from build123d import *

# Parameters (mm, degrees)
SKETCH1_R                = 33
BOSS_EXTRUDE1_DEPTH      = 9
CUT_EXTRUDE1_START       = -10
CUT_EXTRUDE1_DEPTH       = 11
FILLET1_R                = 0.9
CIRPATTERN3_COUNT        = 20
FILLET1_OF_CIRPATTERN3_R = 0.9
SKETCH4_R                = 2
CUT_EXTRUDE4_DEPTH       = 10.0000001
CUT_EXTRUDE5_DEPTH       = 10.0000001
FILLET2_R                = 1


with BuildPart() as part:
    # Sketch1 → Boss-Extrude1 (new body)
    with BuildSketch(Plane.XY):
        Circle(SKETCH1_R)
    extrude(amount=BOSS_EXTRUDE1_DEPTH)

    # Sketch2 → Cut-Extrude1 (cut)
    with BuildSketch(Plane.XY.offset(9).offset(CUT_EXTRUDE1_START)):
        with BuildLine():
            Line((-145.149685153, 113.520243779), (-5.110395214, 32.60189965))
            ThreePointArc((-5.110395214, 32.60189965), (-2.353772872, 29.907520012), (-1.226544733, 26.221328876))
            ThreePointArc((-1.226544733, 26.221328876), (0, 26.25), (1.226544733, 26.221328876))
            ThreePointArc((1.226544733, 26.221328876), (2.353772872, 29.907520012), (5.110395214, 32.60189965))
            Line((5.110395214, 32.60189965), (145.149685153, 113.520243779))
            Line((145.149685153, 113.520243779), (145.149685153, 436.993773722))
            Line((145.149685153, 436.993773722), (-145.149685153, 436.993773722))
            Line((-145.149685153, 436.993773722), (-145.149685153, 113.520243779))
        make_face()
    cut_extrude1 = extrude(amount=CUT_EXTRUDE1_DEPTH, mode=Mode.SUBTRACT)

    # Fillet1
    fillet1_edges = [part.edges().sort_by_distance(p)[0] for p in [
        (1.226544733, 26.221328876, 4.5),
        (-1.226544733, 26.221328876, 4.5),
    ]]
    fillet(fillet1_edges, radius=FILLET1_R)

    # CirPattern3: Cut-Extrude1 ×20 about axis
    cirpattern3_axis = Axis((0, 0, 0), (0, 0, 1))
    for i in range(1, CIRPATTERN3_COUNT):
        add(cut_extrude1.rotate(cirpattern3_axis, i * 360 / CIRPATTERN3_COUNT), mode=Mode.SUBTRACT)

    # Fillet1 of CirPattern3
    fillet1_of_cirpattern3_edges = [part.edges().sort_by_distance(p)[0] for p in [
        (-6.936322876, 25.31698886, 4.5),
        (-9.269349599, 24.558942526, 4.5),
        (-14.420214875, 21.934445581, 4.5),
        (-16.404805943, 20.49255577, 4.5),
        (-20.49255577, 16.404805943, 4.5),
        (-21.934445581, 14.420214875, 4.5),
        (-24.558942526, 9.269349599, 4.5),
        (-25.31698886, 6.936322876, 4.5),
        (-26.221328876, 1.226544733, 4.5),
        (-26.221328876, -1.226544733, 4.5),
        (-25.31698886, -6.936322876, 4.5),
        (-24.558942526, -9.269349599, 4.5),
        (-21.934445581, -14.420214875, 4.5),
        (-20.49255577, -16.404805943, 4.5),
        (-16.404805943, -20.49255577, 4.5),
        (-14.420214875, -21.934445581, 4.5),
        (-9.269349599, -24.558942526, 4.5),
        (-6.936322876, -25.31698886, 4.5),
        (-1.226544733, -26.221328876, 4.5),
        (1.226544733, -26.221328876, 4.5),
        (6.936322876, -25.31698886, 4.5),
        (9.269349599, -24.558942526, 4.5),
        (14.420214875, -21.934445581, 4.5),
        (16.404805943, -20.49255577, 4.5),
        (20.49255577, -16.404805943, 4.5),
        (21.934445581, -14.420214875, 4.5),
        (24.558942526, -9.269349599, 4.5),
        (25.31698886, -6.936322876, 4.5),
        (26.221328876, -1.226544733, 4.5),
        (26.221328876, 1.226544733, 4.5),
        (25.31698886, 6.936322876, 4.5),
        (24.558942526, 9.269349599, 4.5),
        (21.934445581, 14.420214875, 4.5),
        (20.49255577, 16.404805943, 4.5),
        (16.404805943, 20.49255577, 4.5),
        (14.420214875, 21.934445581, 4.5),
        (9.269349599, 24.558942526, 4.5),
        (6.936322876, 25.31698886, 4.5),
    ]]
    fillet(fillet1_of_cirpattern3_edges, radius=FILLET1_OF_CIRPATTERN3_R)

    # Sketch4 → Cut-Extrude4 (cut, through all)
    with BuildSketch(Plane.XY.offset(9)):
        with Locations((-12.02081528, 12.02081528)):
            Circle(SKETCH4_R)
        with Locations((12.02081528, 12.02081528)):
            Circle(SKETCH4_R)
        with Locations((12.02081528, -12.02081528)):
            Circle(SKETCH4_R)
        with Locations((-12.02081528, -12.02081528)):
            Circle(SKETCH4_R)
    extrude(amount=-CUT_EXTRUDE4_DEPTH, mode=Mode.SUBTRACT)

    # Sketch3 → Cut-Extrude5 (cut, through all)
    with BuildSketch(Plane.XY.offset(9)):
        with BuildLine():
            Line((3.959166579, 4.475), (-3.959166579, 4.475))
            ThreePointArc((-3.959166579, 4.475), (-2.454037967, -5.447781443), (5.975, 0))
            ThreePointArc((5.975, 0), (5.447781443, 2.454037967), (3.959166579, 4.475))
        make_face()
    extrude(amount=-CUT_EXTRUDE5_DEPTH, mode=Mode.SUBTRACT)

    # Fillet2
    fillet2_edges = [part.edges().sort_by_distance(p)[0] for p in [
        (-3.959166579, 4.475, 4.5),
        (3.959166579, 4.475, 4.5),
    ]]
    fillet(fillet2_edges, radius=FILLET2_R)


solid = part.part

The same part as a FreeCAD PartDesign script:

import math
import FreeCAD as App
import Part
import Sketcher
from FreeCAD import Vector


def edges_at(feature, points):
    """Names of the edges that pass closest to the given points."""
    edges = feature.Shape.Edges
    near = lambda p: min(range(len(edges)), key=lambda i: edges[i].distToShape(Part.Vertex(*p))[0])
    return sorted({f"Edge{near(p) + 1}" for p in points})

doc = App.newDocument("Part")
body = doc.addObject("PartDesign::Body", "Body")

# Sketch on XY plane
sketch1 = body.newObject("Sketcher::SketchObject", "Sketch")
sketch1.AttachmentSupport = (doc.getObject("XY_Plane"), [""])
sketch1.MapMode = "FlatFace"
sketch1.addGeometry(Part.Circle(Vector(0, 0, 0), Vector(0, 0, 1), 33), False)
sketch1.addConstraint([
    Sketcher.Constraint("Coincident", 0, 3, -1, 1),
    Sketcher.Constraint("Diameter", 0, 66.0),
])
pad1 = body.newObject("PartDesign::Pad", "Pad")
pad1.Profile = sketch1
pad1.Length = 9

# Sketch on XY plane
sketch2 = body.newObject("Sketcher::SketchObject", "Sketch001")
sketch2.AttachmentSupport = (doc.getObject("XY_Plane"), [""])
sketch2.MapMode = "FlatFace"
sketch2.AttachmentOffset = App.Placement(Vector(0, 0, -1), App.Rotation())
sketch2.addGeometry([
    Part.LineSegment(Vector(-145.149685, 113.520244, 0), Vector(-5.110395, 32.6019, 0)),  # 0
    Part.ArcOfCircle(Part.Circle(Vector(-9.007566, 25.857359, 0), Vector(0, 0, 1), 7.789529), math.radians(2.67815), math.radians(59.979561)),  # 1
    Part.ArcOfCircle(Part.Circle(Vector(0, 0, 0), Vector(0, 0, 1), 26.25), math.radians(87.32185), math.radians(92.67815)),  # 2
    Part.ArcOfCircle(Part.Circle(Vector(9.007566, 25.857359, 0), Vector(0, 0, 1), 7.789529), math.radians(120.020439), math.radians(177.32185)),  # 3
    Part.LineSegment(Vector(5.110395, 32.6019, 0), Vector(145.149685, 113.520244, 0)),  # 4
    Part.LineSegment(Vector(145.149685, 113.520244, 0), Vector(145.149685, 436.993774, 0)),  # 5
    Part.LineSegment(Vector(145.149685, 436.993774, 0), Vector(-145.149685, 436.993774, 0)),  # 6
    Part.LineSegment(Vector(-145.149685, 436.993774, 0), Vector(-145.149685, 113.520244, 0)),  # 7
], False)
sketch2.addConstraint([
    Sketcher.Constraint("Coincident", 0, 2, 1, 2),
    Sketcher.Constraint("Coincident", 1, 1, 2, 2),
    Sketcher.Constraint("Coincident", 2, 1, 3, 2),
    Sketcher.Constraint("Coincident", 3, 1, 4, 1),
    Sketcher.Constraint("Coincident", 4, 2, 5, 1),
    Sketcher.Constraint("Coincident", 5, 2, 6, 1),
    Sketcher.Constraint("Coincident", 6, 2, 7, 1),
    Sketcher.Constraint("Coincident", 7, 2, 0, 1),
    Sketcher.Constraint("Vertical", 5),
    Sketcher.Constraint("Horizontal", 6),
    Sketcher.Constraint("Vertical", 7),
    Sketcher.Constraint("Coincident", 2, 3, -1, 1),
    Sketcher.Constraint("Radius", 2, 26.25),
    Sketcher.Constraint("Radius", 1, 7.789529),
    Sketcher.Constraint("Radius", 3, 7.789529),
    Sketcher.Constraint("DistanceX", 6, 2, 6, 1, 290.29937),
    Sketcher.Constraint("DistanceY", 5, 1, 5, 2, 323.47353),
    Sketcher.Constraint("DistanceY", 7, 2, 7, 1, 323.47353),
    Sketcher.Constraint("DistanceY", -1, 1, 0, 2, 32.6019),
    Sketcher.Constraint("DistanceY", -1, 1, 3, 1, 32.6019),
    Sketcher.Constraint("DistanceY", -1, 1, 1, 3, 25.857359),
    Sketcher.Constraint("DistanceY", -1, 1, 3, 3, 25.857359),
    Sketcher.Constraint("DistanceY", -1, 1, 1, 1, 26.221329),
    Sketcher.Constraint("DistanceY", -1, 1, 2, 1, 26.221329),
    Sketcher.Constraint("DistanceX", 3, 1, 4, 2, 140.03929),
    Sketcher.Constraint("Distance", 0, 161.736765),
])
pocket1 = body.newObject("PartDesign::Pocket", "Pocket")
pocket1.Profile = sketch2
pocket1.Length = 11
pocket1.Reversed = True
doc.recompute()

fillet = body.newObject("PartDesign::Fillet", "Fillet")
fillet.Base = (pocket1, edges_at(pocket1, [(1.227, 26.221, 4.5), (-1.227, 26.221, 4.5)]))
fillet.Radius = 0.9
doc.recompute()

polarpattern = body.newObject("PartDesign::PolarPattern", "PolarPattern")
polarpattern.Originals = [pocket1]
polarpattern.Axis = (doc.getObject("Z_Axis"), [""])
polarpattern.Angle = 360
polarpattern.Occurrences = 20
body.Tip = polarpattern
doc.recompute()

fillet2 = body.newObject("PartDesign::Fillet", "Fillet001")
fillet2.Base = (polarpattern, edges_at(polarpattern, [
    (-6.936, 25.317, 4.5),
    (-9.269, 24.559, 4.5),
    (-14.42, 21.934, 4.5),
    (-16.405, 20.493, 4.5),
    (-20.493, 16.405, 4.5),
    (-21.934, 14.42, 4.5),
    (-24.559, 9.269, 4.5),
    (-25.317, 6.936, 4.5),
    (-26.221, 1.227, 4.5),
    (-26.221, -1.227, 4.5),
    (-25.317, -6.936, 4.5),
    (-24.559, -9.269, 4.5),
    (-21.934, -14.42, 4.5),
    (-20.493, -16.405, 4.5),
    (-16.405, -20.493, 4.5),
    (-14.42, -21.934, 4.5),
    (-9.269, -24.559, 4.5),
    (-6.936, -25.317, 4.5),
    (-1.227, -26.221, 4.5),
    (1.227, -26.221, 4.5),
    (6.936, -25.317, 4.5),
    (9.269, -24.559, 4.5),
    (14.42, -21.934, 4.5),
    (16.405, -20.493, 4.5),
    (20.493, -16.405, 4.5),
    (21.934, -14.42, 4.5),
    (24.559, -9.269, 4.5),
    (25.317, -6.936, 4.5),
    (26.221, -1.227, 4.5),
    (26.221, 1.227, 4.5),
    (25.317, 6.936, 4.5),
    (24.559, 9.269, 4.5),
    (21.934, 14.42, 4.5),
    (20.493, 16.405, 4.5),
    (16.405, 20.493, 4.5),
    (14.42, 21.934, 4.5),
    (9.269, 24.559, 4.5),
    (6.936, 25.317, 4.5),
]))
fillet2.Radius = 0.9

# Sketch on XY plane
sketch3 = body.newObject("Sketcher::SketchObject", "Sketch002")
sketch3.AttachmentSupport = (doc.getObject("XY_Plane"), [""])
sketch3.MapMode = "FlatFace"
sketch3.AttachmentOffset = App.Placement(Vector(0, 0, 9), App.Rotation())
sketch3.addGeometry([
    Part.Circle(Vector(-12, 12, 0), Vector(0, 0, 1), 2),
    Part.Circle(Vector(12, 12, 0), Vector(0, 0, 1), 2),
    Part.Circle(Vector(12, -12, 0), Vector(0, 0, 1), 2),
    Part.Circle(Vector(-12, -12, 0), Vector(0, 0, 1), 2),
], False)
sketch3.addConstraint([
    Sketcher.Constraint("Equal", 0, 1),
    Sketcher.Constraint("Equal", 1, 2),
    Sketcher.Constraint("Equal", 2, 3),
    Sketcher.Constraint("Symmetric", 0, 3, 2, 3, -1, 1),
    Sketcher.Constraint("Symmetric", 1, 3, 3, 3, -1, 1),
    Sketcher.Constraint("Symmetric", 0, 3, 1, 3, -2),
    Sketcher.Constraint("Diameter", 0, 4.0),
    Sketcher.Constraint("DistanceX", 0, 3, 1, 3, 24.041631),
    Sketcher.Constraint("DistanceY", 2, 3, 1, 3, 24.041631),
])
pocket2 = body.newObject("PartDesign::Pocket", "Pocket001")
pocket2.Profile = sketch3
pocket2.Type = "ThroughAll"

# Sketch on XY plane
sketch4 = body.newObject("Sketcher::SketchObject", "Sketch003")
sketch4.AttachmentSupport = (doc.getObject("XY_Plane"), [""])
sketch4.MapMode = "FlatFace"
sketch4.AttachmentOffset = App.Placement(Vector(0, 0, 9), App.Rotation())
sketch4.addGeometry([
    Part.LineSegment(Vector(4, 4.5, 0), Vector(-4, 4.5, 0)),
    Part.ArcOfCircle(Part.Circle(Vector(0, 0, 0), Vector(0, 0, 1), 6), math.radians(132), math.radians(360)),
    Part.ArcOfCircle(Part.Circle(Vector(0, 0, 0), Vector(0, 0, 1), 6), math.radians(0), math.radians(48)),
], False)
sketch4.addConstraint([
    Sketcher.Constraint("Coincident", 0, 2, 1, 1),
    Sketcher.Constraint("Tangent", 1, 2, 2, 1),
    Sketcher.Constraint("Coincident", 2, 2, 0, 1),
    Sketcher.Constraint("Horizontal", 0),
    Sketcher.Constraint("Coincident", 1, 3, -1, 1),
    Sketcher.Constraint("Equal", 1, 2),
    Sketcher.Constraint("PointOnObject", 1, 2, -1),
    Sketcher.Constraint("Radius", 1, 5.975),
    Sketcher.Constraint("DistanceY", -1, 1, 0, 2, 4.475),
])
pocket3 = body.newObject("PartDesign::Pocket", "Pocket002")
pocket3.Profile = sketch4
pocket3.Type = "ThroughAll"
doc.recompute()

fillet3 = body.newObject("PartDesign::Fillet", "Fillet002")
fillet3.Base = (pocket3, edges_at(pocket3, [(-3.959, 4.475, 4.5), (3.959, 4.475, 4.5)]))
fillet3.Radius = 1

doc.recompute()
